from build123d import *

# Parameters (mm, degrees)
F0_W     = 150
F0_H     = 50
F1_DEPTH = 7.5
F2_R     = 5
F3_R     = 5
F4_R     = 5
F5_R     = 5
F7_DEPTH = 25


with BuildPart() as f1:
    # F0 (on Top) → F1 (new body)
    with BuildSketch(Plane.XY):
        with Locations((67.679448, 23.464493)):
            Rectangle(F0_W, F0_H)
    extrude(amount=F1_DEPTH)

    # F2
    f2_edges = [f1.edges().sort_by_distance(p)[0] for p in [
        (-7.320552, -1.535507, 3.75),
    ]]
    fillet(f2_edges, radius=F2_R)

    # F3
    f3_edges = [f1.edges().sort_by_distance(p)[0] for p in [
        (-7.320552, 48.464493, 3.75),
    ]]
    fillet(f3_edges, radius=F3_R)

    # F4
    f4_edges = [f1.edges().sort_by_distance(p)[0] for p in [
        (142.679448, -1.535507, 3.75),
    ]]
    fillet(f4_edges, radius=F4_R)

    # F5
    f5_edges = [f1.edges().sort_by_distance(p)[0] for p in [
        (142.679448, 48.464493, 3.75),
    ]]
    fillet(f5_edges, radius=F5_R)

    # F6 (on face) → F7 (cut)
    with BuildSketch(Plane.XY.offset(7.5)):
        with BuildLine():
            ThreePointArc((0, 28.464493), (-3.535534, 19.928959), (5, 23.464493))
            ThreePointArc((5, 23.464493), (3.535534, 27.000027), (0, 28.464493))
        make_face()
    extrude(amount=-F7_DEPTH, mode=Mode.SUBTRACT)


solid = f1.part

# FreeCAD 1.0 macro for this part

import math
import FreeCAD as App
import Part
import Sketcher

V = App.Vector
Q = App.Units.Quantity


def edges_at(feature, points):
    """Names of the edges that pass closest to the given points."""
    edges = feature.Shape.Edges
    near = lambda p: min(range(len(edges)), key=lambda i: edges[i].distToShape(Part.Vertex(*p))[0])
    return sorted({f"Edge{near(p) + 1}" for p in points})

doc = App.newDocument("Part")
body = doc.addObject("PartDesign::Body", "Body")

# Sketch on XY plane
sketch1 = body.newObject("Sketcher::SketchObject", "Sketch")
sketch1.AttachmentSupport = (doc.getObject("XY_Plane"), [""])
sketch1.MapMode = "FlatFace"
sketch1.addGeometry([
    Part.LineSegment(V(-7, 48, 0), V(-7, -2, 0)),
    Part.LineSegment(V(-7, -2, 0), V(143, -2, 0)),
    Part.LineSegment(V(143, -2, 0), V(143, 48, 0)),
    Part.LineSegment(V(143, 48, 0), V(-7, 48, 0)),
], False)
sketch1.addConstraint([
    Sketcher.Constraint("Coincident", 0, 2, 1, 1),
    Sketcher.Constraint("Coincident", 1, 2, 2, 1),
    Sketcher.Constraint("Coincident", 2, 2, 3, 1),
    Sketcher.Constraint("Coincident", 3, 2, 0, 1),
    Sketcher.Constraint("Vertical", 0),
    Sketcher.Constraint("Horizontal", 1),
    Sketcher.Constraint("Vertical", 2),
    Sketcher.Constraint("Horizontal", 3),
    Sketcher.Constraint("DistanceX", 1, 1, 1, 2, Q("150 mm")),
    Sketcher.Constraint("DistanceY", 0, 2, 0, 1, Q("50 mm")),
    Sketcher.Constraint("DistanceX", -1, 1, 1, 2, Q("142.679448 mm")),
    Sketcher.Constraint("DistanceY", 0, 2, -1, 1, Q("1.535507 mm")),
])
pad1 = body.newObject("PartDesign::Pad", "Pad")
pad1.Profile = sketch1
pad1.Length = 7.5
doc.recompute()

fillet = body.newObject("PartDesign::Fillet", "Fillet")
fillet.Base = (pad1, edges_at(pad1, [(-7.321, -1.536, 3.75)]))
fillet.Radius = 5
doc.recompute()

fillet2 = body.newObject("PartDesign::Fillet", "Fillet001")
fillet2.Base = (fillet, edges_at(fillet, [(-7.321, 48.464, 3.75)]))
fillet2.Radius = 5
doc.recompute()

fillet3 = body.newObject("PartDesign::Fillet", "Fillet002")
fillet3.Base = (fillet2, edges_at(fillet2, [(142.679, -1.536, 3.75)]))
fillet3.Radius = 5
doc.recompute()

fillet4 = body.newObject("PartDesign::Fillet", "Fillet003")
fillet4.Base = (fillet3, edges_at(fillet3, [(142.679, 48.464, 3.75)]))
fillet4.Radius = 5

# Sketch on XY plane
sketch2 = body.newObject("Sketcher::SketchObject", "Sketch001")
sketch2.AttachmentSupport = (doc.getObject("XY_Plane"), [""])
sketch2.MapMode = "FlatFace"
sketch2.AttachmentOffset = App.Placement(V(0, 0, 7.5), App.Rotation())
sketch2.addGeometry([
    Part.ArcOfCircle(Part.Circle(V(0, 23.5, 0), V(0, 0, 1), 5), math.radians(90), math.radians(360)),
    Part.ArcOfCircle(Part.Circle(V(0, 23.5, 0), V(0, 0, 1), 5), math.radians(0), math.radians(90)),
], False)
sketch2.addConstraint([
    Sketcher.Constraint("Tangent", 0, 1, 1, 2),
    Sketcher.Constraint("Coincident", 1, 1, 0, 2),
    Sketcher.Constraint("PointOnObject", 0, 3, -2),
    Sketcher.Constraint("PointOnObject", 0, 1, -2),
    Sketcher.Constraint("Horizontal", 0, 3, 1, 1),
    Sketcher.Constraint("Radius", 0, Q("5 mm")),
    Sketcher.Constraint("DistanceY", -1, 1, 0, 3, Q("23.464493 mm")),
])
pocket1 = body.newObject("PartDesign::Pocket", "Pocket")
pocket1.Profile = sketch2
pocket1.Length = 25

doc.recompute()
